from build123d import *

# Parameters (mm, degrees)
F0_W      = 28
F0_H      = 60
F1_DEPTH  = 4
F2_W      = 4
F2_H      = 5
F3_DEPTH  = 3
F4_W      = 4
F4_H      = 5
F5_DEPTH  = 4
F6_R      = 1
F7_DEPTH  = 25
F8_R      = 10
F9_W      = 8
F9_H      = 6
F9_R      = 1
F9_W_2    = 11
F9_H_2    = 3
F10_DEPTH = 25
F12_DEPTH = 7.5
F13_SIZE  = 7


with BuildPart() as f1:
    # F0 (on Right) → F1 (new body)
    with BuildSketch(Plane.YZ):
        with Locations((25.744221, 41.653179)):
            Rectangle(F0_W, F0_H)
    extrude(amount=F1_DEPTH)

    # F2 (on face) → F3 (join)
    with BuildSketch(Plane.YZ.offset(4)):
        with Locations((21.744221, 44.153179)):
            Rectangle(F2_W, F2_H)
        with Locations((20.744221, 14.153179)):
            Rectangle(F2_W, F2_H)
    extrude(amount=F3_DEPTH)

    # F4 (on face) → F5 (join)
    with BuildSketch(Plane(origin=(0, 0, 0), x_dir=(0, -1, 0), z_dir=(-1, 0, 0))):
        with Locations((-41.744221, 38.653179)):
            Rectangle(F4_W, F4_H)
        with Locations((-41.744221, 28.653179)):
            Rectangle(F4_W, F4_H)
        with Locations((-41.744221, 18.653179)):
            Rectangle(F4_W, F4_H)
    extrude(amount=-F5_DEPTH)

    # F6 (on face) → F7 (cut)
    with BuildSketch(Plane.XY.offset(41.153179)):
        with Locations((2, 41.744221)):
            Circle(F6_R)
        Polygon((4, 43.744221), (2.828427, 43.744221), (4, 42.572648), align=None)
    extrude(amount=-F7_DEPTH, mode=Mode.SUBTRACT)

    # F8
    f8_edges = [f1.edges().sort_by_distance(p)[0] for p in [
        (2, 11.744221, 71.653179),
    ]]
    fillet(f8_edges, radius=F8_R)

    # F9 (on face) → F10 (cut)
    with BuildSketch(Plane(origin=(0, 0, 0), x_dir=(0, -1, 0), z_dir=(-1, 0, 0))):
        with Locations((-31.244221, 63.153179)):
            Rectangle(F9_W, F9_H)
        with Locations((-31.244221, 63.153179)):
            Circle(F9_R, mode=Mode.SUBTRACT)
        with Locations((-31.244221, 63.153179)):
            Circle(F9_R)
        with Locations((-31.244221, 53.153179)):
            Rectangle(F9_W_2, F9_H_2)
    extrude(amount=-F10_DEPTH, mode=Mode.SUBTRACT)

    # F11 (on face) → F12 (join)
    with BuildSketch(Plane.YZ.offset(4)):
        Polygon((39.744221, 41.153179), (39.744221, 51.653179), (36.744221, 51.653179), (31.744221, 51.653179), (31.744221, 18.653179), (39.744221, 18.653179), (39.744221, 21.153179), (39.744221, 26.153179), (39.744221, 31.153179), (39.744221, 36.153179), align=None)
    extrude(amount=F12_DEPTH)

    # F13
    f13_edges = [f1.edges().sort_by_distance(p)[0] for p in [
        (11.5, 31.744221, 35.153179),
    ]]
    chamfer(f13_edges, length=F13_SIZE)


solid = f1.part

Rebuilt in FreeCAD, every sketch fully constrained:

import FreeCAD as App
import Part
import Sketcher


def edges_at(feature, points):
    """Names of the edges that pass closest to the given points."""
    edges = feature.Shape.Edges
    near = lambda p: min(range(len(edges)), key=lambda i: edges[i].distToShape(Part.Vertex(*p))[0])
    return sorted({f"Edge{near(p) + 1}" for p in points})


def add_polygon(sketch, points):
    """Adds a closed chain of lines whose ends are joined by coincident constraints."""
    first, n = sketch.GeometryCount, len(points)
    for a, b in zip(points, points[1:] + points[:1]):
        sketch.addGeometry(Part.LineSegment(App.Vector(*a, 0), App.Vector(*b, 0)), False)
    for i in range(n):
        sketch.addConstraint(Sketcher.Constraint("Coincident", first + i, 2, first + (i + 1) % n, 1))

doc = App.newDocument("Part")
body = doc.addObject("PartDesign::Body", "Body")

sketch1 = body.newObject("Sketcher::SketchObject", "Sketch")
sketch1.AttachmentSupport = (doc.getObject("YZ_Plane"), [""])
sketch1.MapMode = "FlatFace"
add_polygon(sketch1, [(12, 72), (12, 12), (40, 12), (40, 72)])
sketch1.addConstraint(Sketcher.Constraint("Vertical", 0))
sketch1.addConstraint(Sketcher.Constraint("Horizontal", 1))
sketch1.addConstraint(Sketcher.Constraint("Vertical", 2))
sketch1.addConstraint(Sketcher.Constraint("Horizontal", 3))
sketch1.addConstraint(Sketcher.Constraint("DistanceX", 1, 1, 1, 2, 28.0))
sketch1.addConstraint(Sketcher.Constraint("DistanceY", 0, 2, 0, 1, 60.0))
sketch1.addConstraint(Sketcher.Constraint("DistanceX", -1, 1, 0, 2, 11.744221))
sketch1.addConstraint(Sketcher.Constraint("DistanceY", -1, 1, 0, 2, 11.653179))
pad1 = body.newObject("PartDesign::Pad", "Pad")
pad1.Profile = sketch1
pad1.Length = 4

sketch2 = body.newObject("Sketcher::SketchObject", "Sketch001")
sketch2.AttachmentSupport = (doc.getObject("YZ_Plane"), [""])
sketch2.MapMode = "FlatFace"
sketch2.AttachmentOffset = App.Placement(App.Vector(0, 0, 4), App.Rotation())
add_polygon(sketch2, [(19.7, 46.7), (19.7, 41.7), (23.7, 41.7), (23.7, 46.7)])
add_polygon(sketch2, [(18.7, 16.7), (18.7, 11.7), (22.7, 11.7), (22.7, 16.7)])
sketch2.addConstraint(Sketcher.Constraint("Vertical", 0))
sketch2.addConstraint(Sketcher.Constraint("Horizontal", 1))
sketch2.addConstraint(Sketcher.Constraint("Vertical", 2))
sketch2.addConstraint(Sketcher.Constraint("Horizontal", 3))
sketch2.addConstraint(Sketcher.Constraint("Vertical", 4))
sketch2.addConstraint(Sketcher.Constraint("Horizontal", 5))
sketch2.addConstraint(Sketcher.Constraint("Vertical", 6))
sketch2.addConstraint(Sketcher.Constraint("Horizontal", 7))
sketch2.addConstraint(Sketcher.Constraint("Equal", 3, 5))
sketch2.addConstraint(Sketcher.Constraint("Equal", 2, 4))
sketch2.addConstraint(Sketcher.Constraint("DistanceX", 1, 1, 1, 2, 4.0))
sketch2.addConstraint(Sketcher.Constraint("DistanceY", 0, 2, 0, 1, 5.0))
sketch2.addConstraint(Sketcher.Constraint("DistanceX", 4, 2, 0, 2, 1.0))
sketch2.addConstraint(Sketcher.Constraint("DistanceY", 4, 2, 0, 2, 30.0))
sketch2.addConstraint(Sketcher.Constraint("DistanceX", -1, 1, 0, 2, 19.744221))
sketch2.addConstraint(Sketcher.Constraint("DistanceY", -1, 1, 0, 2, 41.653179))
pad2 = body.newObject("PartDesign::Pad", "Pad001")
pad2.Profile = sketch2
pad2.Length = 3

sketch3 = body.newObject("Sketcher::SketchObject", "Sketch002")
sketch3.AttachmentSupport = (doc.getObject("YZ_Plane"), [""])
sketch3.MapMode = "FlatFace"
add_polygon(sketch3, [(43.7, 41.2), (43.7, 36.2), (39.7, 36.2), (39.7, 41.2)])
add_polygon(sketch3, [(43.7, 31.2), (43.7, 26.2), (39.7, 26.2), (39.7, 31.2)])
add_polygon(sketch3, [(43.7, 21.2), (43.7, 16.2), (39.7, 16.2), (39.7, 21.2)])
sketch3.addConstraint(Sketcher.Constraint("Vertical", 0))
sketch3.addConstraint(Sketcher.Constraint("Horizontal", 1))
sketch3.addConstraint(Sketcher.Constraint("Vertical", 2))
sketch3.addConstraint(Sketcher.Constraint("Horizontal", 3))
sketch3.addConstraint(Sketcher.Constraint("Vertical", 4))
sketch3.addConstraint(Sketcher.Constraint("Horizontal", 5))
sketch3.addConstraint(Sketcher.Constraint("Vertical", 6))
sketch3.addConstraint(Sketcher.Constraint("Horizontal", 7))
sketch3.addConstraint(Sketcher.Constraint("Vertical", 8))
sketch3.addConstraint(Sketcher.Constraint("Horizontal", 9))
sketch3.addConstraint(Sketcher.Constraint("Vertical", 10))
sketch3.addConstraint(Sketcher.Constraint("Horizontal", 11))
sketch3.addConstraint(Sketcher.Constraint("Vertical", 3, 2, 4, 2))
sketch3.addConstraint(Sketcher.Constraint("Vertical", 2, 2, 5, 2))
sketch3.addConstraint(Sketcher.Constraint("Vertical", 7, 2, 8, 2))
sketch3.addConstraint(Sketcher.Constraint("Vertical", 6, 2, 9, 2))
sketch3.addConstraint(Sketcher.Constraint("Equal", 2, 4))
sketch3.addConstraint(Sketcher.Constraint("Equal", 6, 8))
sketch3.addConstraint(Sketcher.Constraint("DistanceX", 1, 2, 1, 1, 4.0))
sketch3.addConstraint(Sketcher.Constraint("DistanceY", 0, 2, 0, 1, 5.0))
sketch3.addConstraint(Sketcher.Constraint("DistanceY", 4, 2, 0, 2, 10.0))
sketch3.addConstraint(Sketcher.Constraint("DistanceY", 8, 2, 4, 2, 10.0))
sketch3.addConstraint(Sketcher.Constraint("DistanceX", -1, 1, 0, 2, 43.744221))
sketch3.addConstraint(Sketcher.Constraint("DistanceY", -1, 1, 0, 2, 36.153179))
pad3 = body.newObject("PartDesign::Pad", "Pad002")
pad3.Profile = sketch3
pad3.Length = 4

sketch4 = body.newObject("Sketcher::SketchObject", "Sketch003")
sketch4.AttachmentSupport = (doc.getObject("XY_Plane"), [""])
sketch4.MapMode = "FlatFace"
sketch4.AttachmentOffset = App.Placement(App.Vector(0, 0, 41.153179), App.Rotation())
sketch4.addGeometry(Part.Circle(App.Vector(2, 41.7, 0), App.Vector(0, 0, 1), 1), False)
add_polygon(sketch4, [(4, 43.7), (2.8, 43.7), (4, 42.6)])
sketch4.addConstraint(Sketcher.Constraint("Horizontal", 1))
sketch4.addConstraint(Sketcher.Constraint("Vertical", 3))
sketch4.addConstraint(Sketcher.Constraint("Equal", 1, 3))
sketch4.addConstraint(Sketcher.Constraint("Diameter", 0, 2.0))
sketch4.addConstraint(Sketcher.Constraint("DistanceX", -1, 1, 0, 3, 2.0))
sketch4.addConstraint(Sketcher.Constraint("DistanceX", -1, 1, 2, 2, 4.0))
sketch4.addConstraint(Sketcher.Constraint("DistanceY", 0, 3, 1, 2, 2.0))
sketch4.addConstraint(Sketcher.Constraint("DistanceX", 1, 2, 1, 1, 1.171573))
sketch4.addConstraint(Sketcher.Constraint("DistanceY", -1, 1, 0, 3, 41.744221))
pocket1 = body.newObject("PartDesign::Pocket", "Pocket")
pocket1.Profile = sketch4
pocket1.Length = 25
doc.recompute()

fillet = body.newObject("PartDesign::Fillet", "Fillet")
fillet.Base = (pocket1, edges_at(pocket1, [(2, 11.744, 71.653)]))
fillet.Radius = 10

sketch5 = body.newObject("Sketcher::SketchObject", "Sketch004")
sketch5.AttachmentSupport = (doc.getObject("YZ_Plane"), [""])
sketch5.MapMode = "FlatFace"
add_polygon(sketch5, [(35.2, 66.2), (35.2, 60.2), (27.2, 60.2), (27.2, 66.2)])
add_polygon(sketch5, [(36.7, 54.7), (36.7, 51.7), (25.7, 51.7), (25.7, 54.7)])
sketch5.addConstraint(Sketcher.Constraint("Vertical", 0))
sketch5.addConstraint(Sketcher.Constraint("Horizontal", 1))
sketch5.addConstraint(Sketcher.Constraint("Vertical", 2))
sketch5.addConstraint(Sketcher.Constraint("Horizontal", 3))
sketch5.addConstraint(Sketcher.Constraint("Vertical", 4))
sketch5.addConstraint(Sketcher.Constraint("Horizontal", 5))
sketch5.addConstraint(Sketcher.Constraint("Vertical", 6))
sketch5.addConstraint(Sketcher.Constraint("Horizontal", 7))
sketch5.addConstraint(Sketcher.Constraint("DistanceX", 1, 2, 1, 1, 8.0))
sketch5.addConstraint(Sketcher.Constraint("DistanceX", 5, 2, 5, 1, 11.0))
sketch5.addConstraint(Sketcher.Constraint("DistanceY", 0, 2, 0, 1, 6.0))
sketch5.addConstraint(Sketcher.Constraint("DistanceY", 4, 2, 4, 1, 3.0))
sketch5.addConstraint(Sketcher.Constraint("DistanceX", 0, 2, 4, 2, 1.5))
sketch5.addConstraint(Sketcher.Constraint("DistanceY", 4, 2, 0, 2, 8.5))
sketch5.addConstraint(Sketcher.Constraint("DistanceX", -1, 1, 0, 2, 35.244221))
sketch5.addConstraint(Sketcher.Constraint("DistanceY", -1, 1, 0, 2, 60.153179))
pocket2 = body.newObject("PartDesign::Pocket", "Pocket001")
pocket2.Profile = sketch5
pocket2.Length = 25
pocket2.Reversed = True

sketch6 = body.newObject("Sketcher::SketchObject", "Sketch005")
sketch6.AttachmentSupport = (doc.getObject("YZ_Plane"), [""])
sketch6.MapMode = "FlatFace"
sketch6.AttachmentOffset = App.Placement(App.Vector(0, 0, 4), App.Rotation())
add_polygon(sketch6, [(40, 52), (32, 52), (32, 19), (40, 19)])
sketch6.addConstraint(Sketcher.Constraint("Horizontal", 0))
sketch6.addConstraint(Sketcher.Constraint("Vertical", 1))
sketch6.addConstraint(Sketcher.Constraint("Horizontal", 2))
sketch6.addConstraint(Sketcher.Constraint("Vertical", 3))
sketch6.addConstraint(Sketcher.Constraint("DistanceX", 0, 2, 0, 1, 8.0))
sketch6.addConstraint(Sketcher.Constraint("DistanceY", 1, 2, 1, 1, 33.0))
sketch6.addConstraint(Sketcher.Constraint("DistanceX", -1, 1, 0, 2, 31.744221))
sketch6.addConstraint(Sketcher.Constraint("DistanceY", -1, 1, 0, 2, 51.653179))
pad4 = body.newObject("PartDesign::Pad", "Pad003")
pad4.Profile = sketch6
pad4.Length = 7.5
doc.recompute()

chamfer = body.newObject("PartDesign::Chamfer", "Chamfer")
chamfer.Base = (pad4, edges_at(pad4, [(11.5, 31.744, 35.153)]))
chamfer.Size = 7

doc.recompute()
